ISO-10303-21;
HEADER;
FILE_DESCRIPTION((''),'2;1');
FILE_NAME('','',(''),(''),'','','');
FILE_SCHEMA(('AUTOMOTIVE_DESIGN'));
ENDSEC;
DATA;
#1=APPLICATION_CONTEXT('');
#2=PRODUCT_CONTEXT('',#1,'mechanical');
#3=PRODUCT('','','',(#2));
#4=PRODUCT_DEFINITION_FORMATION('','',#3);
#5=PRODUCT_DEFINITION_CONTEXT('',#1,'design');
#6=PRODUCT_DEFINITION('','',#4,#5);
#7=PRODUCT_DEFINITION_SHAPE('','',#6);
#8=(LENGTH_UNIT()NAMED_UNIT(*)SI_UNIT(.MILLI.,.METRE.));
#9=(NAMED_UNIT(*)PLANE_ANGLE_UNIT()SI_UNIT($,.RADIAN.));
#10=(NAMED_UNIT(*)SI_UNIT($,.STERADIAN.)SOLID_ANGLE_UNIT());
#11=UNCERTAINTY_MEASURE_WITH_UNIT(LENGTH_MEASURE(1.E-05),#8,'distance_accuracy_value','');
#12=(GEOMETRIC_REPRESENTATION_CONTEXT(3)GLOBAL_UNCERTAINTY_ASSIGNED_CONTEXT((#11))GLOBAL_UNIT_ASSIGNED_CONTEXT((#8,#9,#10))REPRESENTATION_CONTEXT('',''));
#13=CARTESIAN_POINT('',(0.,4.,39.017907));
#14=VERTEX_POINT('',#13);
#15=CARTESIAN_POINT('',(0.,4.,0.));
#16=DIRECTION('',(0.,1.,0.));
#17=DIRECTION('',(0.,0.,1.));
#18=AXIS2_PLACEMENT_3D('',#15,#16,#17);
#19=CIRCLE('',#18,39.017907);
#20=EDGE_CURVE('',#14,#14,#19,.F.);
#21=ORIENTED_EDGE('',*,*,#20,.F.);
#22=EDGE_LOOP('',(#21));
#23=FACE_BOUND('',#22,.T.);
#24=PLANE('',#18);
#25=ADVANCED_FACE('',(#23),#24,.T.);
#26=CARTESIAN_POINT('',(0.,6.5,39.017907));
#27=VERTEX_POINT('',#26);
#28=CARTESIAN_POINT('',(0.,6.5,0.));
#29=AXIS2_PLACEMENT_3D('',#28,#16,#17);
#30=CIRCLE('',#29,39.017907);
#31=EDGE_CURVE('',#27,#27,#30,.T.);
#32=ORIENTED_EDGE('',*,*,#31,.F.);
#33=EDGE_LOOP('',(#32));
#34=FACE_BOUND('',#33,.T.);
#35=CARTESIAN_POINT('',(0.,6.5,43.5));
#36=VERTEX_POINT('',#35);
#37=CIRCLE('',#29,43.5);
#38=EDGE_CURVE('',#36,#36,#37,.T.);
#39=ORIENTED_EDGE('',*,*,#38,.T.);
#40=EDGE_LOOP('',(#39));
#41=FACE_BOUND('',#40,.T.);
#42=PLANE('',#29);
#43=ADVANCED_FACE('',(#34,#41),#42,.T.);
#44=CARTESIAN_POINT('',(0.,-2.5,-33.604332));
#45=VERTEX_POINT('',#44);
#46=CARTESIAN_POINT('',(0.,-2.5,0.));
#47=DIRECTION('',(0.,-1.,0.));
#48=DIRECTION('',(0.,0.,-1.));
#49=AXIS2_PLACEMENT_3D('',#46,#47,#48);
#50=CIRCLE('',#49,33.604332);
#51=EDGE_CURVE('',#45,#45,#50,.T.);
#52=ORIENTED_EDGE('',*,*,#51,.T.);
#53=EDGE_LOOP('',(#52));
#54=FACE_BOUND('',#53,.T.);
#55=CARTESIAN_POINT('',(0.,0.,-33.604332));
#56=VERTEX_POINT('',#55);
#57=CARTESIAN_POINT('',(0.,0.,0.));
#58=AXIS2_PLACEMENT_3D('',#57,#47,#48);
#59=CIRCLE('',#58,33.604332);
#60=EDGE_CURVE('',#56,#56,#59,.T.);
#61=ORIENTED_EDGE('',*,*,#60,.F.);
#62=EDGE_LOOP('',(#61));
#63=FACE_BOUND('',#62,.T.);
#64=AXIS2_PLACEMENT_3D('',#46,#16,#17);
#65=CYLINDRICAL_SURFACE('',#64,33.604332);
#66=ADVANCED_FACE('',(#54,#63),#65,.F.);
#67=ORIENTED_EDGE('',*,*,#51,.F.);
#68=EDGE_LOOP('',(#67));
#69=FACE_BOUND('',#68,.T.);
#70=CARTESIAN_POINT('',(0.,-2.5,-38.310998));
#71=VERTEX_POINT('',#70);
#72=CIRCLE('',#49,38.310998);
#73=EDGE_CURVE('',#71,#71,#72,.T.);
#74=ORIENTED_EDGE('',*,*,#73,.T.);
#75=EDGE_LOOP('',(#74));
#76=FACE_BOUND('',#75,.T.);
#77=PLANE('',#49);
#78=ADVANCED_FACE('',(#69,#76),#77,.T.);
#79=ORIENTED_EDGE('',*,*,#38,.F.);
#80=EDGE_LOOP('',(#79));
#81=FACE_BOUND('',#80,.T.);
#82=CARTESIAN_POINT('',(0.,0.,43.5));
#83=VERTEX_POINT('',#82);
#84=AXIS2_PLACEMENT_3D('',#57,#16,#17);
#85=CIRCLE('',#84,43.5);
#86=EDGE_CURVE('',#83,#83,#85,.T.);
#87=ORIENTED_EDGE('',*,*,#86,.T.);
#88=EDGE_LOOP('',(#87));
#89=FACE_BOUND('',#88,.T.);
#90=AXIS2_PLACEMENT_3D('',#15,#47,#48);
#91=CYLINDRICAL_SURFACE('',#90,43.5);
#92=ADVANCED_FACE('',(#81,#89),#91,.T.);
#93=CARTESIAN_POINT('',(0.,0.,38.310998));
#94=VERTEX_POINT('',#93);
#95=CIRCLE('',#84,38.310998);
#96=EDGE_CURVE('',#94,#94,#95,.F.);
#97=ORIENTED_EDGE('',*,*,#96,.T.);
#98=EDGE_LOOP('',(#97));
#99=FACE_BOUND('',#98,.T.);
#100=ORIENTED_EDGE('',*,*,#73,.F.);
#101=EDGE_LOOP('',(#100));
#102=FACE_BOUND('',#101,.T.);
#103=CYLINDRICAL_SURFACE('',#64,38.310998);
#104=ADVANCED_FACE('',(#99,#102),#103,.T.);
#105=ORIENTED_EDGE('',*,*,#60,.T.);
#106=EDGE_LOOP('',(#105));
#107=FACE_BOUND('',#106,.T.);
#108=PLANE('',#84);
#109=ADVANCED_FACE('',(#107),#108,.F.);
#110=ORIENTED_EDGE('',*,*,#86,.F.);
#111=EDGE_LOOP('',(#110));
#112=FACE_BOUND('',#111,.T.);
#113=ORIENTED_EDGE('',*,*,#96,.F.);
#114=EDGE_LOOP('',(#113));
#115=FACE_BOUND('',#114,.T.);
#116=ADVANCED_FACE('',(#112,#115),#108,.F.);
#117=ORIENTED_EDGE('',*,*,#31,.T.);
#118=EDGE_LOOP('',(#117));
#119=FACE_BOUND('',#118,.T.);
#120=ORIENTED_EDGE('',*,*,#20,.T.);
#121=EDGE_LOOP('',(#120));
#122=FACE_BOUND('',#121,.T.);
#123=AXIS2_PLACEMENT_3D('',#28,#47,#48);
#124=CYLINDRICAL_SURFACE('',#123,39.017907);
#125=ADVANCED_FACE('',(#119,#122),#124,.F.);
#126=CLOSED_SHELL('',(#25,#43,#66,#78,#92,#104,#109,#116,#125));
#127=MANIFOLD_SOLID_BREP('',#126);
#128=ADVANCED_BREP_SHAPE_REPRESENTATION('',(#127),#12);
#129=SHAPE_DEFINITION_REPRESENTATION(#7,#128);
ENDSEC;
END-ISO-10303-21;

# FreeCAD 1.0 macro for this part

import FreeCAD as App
import Part
import Sketcher

V = App.Vector
Q = App.Units.Quantity

doc = App.newDocument("Part")
params = doc.addObject("Spreadsheet::Sheet", "Params")
for row, (alias, value) in enumerate([
    ("sketch1_diameter", "87 mm"),
    ("pad1_length", "4 mm"),
    ("sketch2_diameter", "87 mm"),
    ("pad2_length", "2.5 mm"),
    ("pad3_length", "2.5 mm"),
], start=1):
    params.set(f"A{row}", alias)
    params.set(f"B{row}", "=" + value)
    params.setAlias(f"B{row}", alias)

body = doc.addObject("PartDesign::Body", "Body")

# Sketch on XZ plane
sketch1 = doc.addObject("Sketcher::SketchObject", "Sketch")
body.addObject(sketch1)
sketch1.AttachmentSupport = (doc.XZ_Plane, [""])
sketch1.MapMode = "FlatFace"
sketch1.addGeometry(Part.Circle(V(0, 0, 0), V(0, 0, 1), 44), False)
sketch1.addConstraint([
    Sketcher.Constraint("Coincident", 0, 3, -1, 1),
    Sketcher.Constraint("Diameter", 0, Q("87 mm")),
])
sketch1.setExpression("Constraints[1]", "Params.sketch1_diameter")
pad1 = doc.addObject("PartDesign::Pad", "Pad")
body.addObject(pad1)
pad1.Profile = sketch1
pad1.setExpression("Length", "Params.pad1_length")
pad1.Reversed = True

# Sketch on XZ plane
sketch2 = doc.addObject("Sketcher::SketchObject", "Sketch001")
body.addObject(sketch2)
sketch2.AttachmentSupport = (doc.XZ_Plane, [""])
sketch2.MapMode = "FlatFace"
sketch2.AttachmentOffset = App.Placement(V(0, 0, -4), App.Rotation())
sketch2.addGeometry([
    Part.Circle(V(0, 0, 0), V(0, 0, 1), 44),
    Part.Circle(V(0, 0, 0), V(0, 0, 1), 39),
], False)
sketch2.addConstraint([
    Sketcher.Constraint("Coincident", 0, 3, -1, 1),
    Sketcher.Constraint("Coincident", 1, 3, -1, 1),
    Sketcher.Constraint("Diameter", 0, Q("87 mm")),
    Sketcher.Constraint("Diameter", 1, Q("78.035814 mm")),
])
sketch2.setExpression("Constraints[2]", "Params.sketch2_diameter")
pad2 = doc.addObject("PartDesign::Pad", "Pad001")
body.addObject(pad2)
pad2.Profile = sketch2
pad2.setExpression("Length", "Params.pad2_length")
pad2.Reversed = True

# Sketch on XZ plane
sketch3 = doc.addObject("Sketcher::SketchObject", "Sketch002")
body.addObject(sketch3)
sketch3.AttachmentSupport = (doc.XZ_Plane, [""])
sketch3.MapMode = "FlatFace"
sketch3.addGeometry([
    Part.Circle(V(0, 0, 0), V(0, 0, 1), 38),
    Part.Circle(V(0, 0, 0), V(0, 0, 1), 34),
], False)
sketch3.addConstraint([
    Sketcher.Constraint("Coincident", 0, 3, -1, 1),
    Sketcher.Constraint("Coincident", 1, 3, -1, 1),
    Sketcher.Constraint("Diameter", 0, Q("76.621996 mm")),
    Sketcher.Constraint("Diameter", 1, Q("67.208664 mm")),
])
pad3 = doc.addObject("PartDesign::Pad", "Pad002")
body.addObject(pad3)
pad3.Profile = sketch3
pad3.setExpression("Length", "Params.pad3_length")

doc.recompute()
